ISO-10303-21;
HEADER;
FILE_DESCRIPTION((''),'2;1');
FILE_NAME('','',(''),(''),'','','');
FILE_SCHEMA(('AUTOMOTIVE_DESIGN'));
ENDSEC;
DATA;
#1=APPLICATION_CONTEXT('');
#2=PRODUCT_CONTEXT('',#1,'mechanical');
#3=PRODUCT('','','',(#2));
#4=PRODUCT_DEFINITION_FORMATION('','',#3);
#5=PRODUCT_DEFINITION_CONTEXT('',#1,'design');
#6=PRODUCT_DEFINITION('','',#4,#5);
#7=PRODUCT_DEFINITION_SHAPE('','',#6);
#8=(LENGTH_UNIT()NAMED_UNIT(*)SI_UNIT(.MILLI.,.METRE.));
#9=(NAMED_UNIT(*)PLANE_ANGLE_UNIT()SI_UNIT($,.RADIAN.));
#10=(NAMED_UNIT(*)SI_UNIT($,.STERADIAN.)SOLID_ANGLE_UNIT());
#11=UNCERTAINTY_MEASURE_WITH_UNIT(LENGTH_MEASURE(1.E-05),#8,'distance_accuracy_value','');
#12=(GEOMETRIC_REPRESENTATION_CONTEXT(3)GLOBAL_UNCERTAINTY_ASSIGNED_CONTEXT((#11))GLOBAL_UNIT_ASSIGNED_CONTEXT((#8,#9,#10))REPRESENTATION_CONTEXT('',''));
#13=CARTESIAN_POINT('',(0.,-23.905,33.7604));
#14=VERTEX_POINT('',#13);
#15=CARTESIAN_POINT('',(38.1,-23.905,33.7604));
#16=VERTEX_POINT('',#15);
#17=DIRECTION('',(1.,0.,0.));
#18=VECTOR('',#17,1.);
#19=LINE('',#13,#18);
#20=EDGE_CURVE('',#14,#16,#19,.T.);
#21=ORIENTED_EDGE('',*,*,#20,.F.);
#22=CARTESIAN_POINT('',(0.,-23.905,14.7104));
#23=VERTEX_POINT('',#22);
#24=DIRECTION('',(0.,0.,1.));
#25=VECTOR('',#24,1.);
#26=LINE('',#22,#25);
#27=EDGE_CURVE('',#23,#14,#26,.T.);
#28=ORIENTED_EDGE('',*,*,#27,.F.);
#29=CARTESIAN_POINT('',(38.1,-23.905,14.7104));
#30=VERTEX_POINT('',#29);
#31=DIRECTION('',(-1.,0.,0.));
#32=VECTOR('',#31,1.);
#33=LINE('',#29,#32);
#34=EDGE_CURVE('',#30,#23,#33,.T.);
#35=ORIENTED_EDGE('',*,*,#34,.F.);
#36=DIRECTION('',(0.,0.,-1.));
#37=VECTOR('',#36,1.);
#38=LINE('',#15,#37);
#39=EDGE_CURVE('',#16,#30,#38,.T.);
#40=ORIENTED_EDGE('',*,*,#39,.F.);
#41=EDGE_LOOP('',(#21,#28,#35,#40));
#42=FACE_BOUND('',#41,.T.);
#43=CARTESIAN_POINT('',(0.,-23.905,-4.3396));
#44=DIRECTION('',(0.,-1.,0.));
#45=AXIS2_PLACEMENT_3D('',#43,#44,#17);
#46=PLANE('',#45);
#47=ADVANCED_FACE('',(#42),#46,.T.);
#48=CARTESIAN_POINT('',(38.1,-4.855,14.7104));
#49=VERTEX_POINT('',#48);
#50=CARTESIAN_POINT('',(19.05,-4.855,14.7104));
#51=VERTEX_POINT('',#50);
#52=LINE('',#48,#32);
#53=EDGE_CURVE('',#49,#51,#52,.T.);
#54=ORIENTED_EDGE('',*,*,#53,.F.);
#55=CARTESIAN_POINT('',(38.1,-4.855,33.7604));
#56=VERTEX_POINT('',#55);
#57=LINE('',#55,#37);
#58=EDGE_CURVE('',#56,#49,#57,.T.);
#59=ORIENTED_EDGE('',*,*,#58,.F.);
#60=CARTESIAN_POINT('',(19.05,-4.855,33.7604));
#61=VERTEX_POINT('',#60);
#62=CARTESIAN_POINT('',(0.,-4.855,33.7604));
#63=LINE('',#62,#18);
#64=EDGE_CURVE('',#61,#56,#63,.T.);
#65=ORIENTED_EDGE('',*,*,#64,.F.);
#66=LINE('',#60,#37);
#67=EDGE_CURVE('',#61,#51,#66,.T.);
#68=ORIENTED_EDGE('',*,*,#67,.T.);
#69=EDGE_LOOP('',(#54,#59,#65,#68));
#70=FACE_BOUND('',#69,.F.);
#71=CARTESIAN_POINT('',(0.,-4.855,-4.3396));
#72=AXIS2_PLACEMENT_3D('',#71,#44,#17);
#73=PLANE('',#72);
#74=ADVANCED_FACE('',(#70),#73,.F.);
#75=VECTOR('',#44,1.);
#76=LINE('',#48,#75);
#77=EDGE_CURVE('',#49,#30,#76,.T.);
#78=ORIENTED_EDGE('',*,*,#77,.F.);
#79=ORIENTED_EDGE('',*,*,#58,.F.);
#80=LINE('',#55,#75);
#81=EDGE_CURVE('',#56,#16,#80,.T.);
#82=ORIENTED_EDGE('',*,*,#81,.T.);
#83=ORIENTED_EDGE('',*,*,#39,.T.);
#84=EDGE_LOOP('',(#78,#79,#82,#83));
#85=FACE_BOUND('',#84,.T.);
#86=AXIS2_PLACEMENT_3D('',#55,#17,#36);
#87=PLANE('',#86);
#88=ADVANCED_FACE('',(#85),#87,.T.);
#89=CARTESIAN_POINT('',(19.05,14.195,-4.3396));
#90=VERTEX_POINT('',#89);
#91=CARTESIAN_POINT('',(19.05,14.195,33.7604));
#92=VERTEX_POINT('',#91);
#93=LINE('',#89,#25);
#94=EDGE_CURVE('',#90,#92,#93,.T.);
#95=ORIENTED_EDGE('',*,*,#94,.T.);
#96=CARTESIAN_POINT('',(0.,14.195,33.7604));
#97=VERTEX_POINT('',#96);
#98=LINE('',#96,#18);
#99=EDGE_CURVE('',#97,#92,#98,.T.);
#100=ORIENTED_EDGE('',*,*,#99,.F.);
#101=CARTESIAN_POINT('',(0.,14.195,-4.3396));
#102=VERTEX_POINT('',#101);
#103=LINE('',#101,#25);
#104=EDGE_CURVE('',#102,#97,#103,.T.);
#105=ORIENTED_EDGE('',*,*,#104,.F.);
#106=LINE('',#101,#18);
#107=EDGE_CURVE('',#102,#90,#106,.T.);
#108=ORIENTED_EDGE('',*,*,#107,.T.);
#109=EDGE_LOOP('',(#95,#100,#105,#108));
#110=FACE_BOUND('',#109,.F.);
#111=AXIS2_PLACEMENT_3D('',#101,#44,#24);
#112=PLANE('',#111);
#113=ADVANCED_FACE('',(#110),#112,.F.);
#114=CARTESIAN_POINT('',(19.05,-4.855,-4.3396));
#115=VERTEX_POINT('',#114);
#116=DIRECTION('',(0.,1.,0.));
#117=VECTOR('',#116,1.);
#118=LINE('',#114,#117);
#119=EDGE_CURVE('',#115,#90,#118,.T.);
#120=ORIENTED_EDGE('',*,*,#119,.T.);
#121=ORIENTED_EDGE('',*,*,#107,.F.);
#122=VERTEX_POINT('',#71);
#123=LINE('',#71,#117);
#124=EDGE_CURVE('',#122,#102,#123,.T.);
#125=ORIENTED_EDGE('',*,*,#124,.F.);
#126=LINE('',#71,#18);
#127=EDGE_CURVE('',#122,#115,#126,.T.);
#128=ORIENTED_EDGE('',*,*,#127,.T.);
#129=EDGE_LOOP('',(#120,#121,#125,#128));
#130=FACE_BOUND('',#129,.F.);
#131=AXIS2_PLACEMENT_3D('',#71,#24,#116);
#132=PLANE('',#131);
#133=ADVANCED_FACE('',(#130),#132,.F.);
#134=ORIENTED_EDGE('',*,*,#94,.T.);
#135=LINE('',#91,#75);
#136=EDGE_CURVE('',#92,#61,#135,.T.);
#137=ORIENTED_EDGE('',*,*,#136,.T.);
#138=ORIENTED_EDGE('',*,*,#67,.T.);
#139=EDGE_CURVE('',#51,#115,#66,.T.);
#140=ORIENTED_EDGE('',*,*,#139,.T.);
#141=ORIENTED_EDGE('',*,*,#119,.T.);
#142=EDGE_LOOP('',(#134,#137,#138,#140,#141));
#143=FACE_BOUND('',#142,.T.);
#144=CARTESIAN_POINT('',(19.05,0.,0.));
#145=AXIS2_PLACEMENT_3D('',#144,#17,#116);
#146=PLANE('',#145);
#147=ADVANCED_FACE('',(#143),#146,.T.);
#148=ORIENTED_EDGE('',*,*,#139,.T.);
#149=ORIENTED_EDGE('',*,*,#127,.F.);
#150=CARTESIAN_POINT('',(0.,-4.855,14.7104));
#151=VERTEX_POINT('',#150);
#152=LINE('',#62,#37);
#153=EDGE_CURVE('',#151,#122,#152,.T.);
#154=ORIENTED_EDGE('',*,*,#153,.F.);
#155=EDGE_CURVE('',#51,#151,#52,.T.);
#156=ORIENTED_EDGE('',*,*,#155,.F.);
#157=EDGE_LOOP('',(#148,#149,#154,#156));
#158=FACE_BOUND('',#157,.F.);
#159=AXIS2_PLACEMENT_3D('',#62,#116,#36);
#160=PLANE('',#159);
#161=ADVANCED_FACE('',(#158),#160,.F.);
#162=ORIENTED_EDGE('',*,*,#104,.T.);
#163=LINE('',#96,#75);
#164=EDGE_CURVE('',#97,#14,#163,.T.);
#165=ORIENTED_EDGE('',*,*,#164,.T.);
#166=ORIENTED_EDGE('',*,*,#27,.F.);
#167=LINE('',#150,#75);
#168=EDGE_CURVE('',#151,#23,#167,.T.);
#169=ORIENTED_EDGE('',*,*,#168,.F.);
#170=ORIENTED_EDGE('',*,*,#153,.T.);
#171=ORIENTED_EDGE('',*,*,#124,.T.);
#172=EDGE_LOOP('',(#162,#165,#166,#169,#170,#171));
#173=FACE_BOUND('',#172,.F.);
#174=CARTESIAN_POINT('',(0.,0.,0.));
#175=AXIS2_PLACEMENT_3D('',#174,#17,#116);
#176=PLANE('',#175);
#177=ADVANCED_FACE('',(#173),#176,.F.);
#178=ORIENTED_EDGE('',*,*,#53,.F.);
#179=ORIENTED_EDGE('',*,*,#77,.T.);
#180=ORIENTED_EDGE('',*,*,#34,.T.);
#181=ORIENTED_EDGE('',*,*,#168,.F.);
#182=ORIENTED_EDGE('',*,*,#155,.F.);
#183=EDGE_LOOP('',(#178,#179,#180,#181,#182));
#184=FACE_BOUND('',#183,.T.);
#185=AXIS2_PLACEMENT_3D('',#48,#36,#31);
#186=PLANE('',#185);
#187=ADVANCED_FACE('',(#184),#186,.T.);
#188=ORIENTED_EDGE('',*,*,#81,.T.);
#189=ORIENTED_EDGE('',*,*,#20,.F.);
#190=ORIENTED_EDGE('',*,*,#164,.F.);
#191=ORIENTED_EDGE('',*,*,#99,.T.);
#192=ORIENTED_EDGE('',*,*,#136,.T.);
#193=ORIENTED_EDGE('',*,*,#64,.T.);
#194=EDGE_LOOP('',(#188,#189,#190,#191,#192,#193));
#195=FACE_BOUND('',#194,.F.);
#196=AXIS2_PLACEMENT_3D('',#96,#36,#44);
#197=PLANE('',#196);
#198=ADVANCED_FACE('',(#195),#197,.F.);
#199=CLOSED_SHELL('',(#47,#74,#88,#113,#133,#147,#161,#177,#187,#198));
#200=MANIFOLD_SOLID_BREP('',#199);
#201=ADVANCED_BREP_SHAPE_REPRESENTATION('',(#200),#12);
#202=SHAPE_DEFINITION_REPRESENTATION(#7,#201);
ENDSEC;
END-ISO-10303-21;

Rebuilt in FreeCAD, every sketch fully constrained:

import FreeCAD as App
import Part
import Sketcher
Q = App.Units.Quantity

doc = App.newDocument("Part")
params = doc.addObject("Spreadsheet::Sheet", "Params")
for row, (alias, value) in enumerate([
    ("sketch1_height", "1.5 in"),
    ("sketch1_width", "0.75 in"),
    ("pad1_length", "0.75 in"),
    ("sketch2_width", "1.5 in"),
    ("sketch2_height", "0.75 in"),
    ("pad2_length", "0.75 in"),
], start=1):
    params.set(f"A{row}", alias)
    params.set(f"B{row}", "=" + value)
    params.setAlias(f"B{row}", alias)

body = doc.addObject("PartDesign::Body", "Body")

sketch1 = body.newObject("Sketcher::SketchObject", "Sketch")
sketch1.AttachmentSupport = (doc.getObject("YZ_Plane"), [""])
sketch1.MapMode = "FlatFace"
sketch1.addGeometry([
    Part.LineSegment(App.Vector(14.195, -4.3396, 0), App.Vector(14.195, 33.7604, 0)),
    Part.LineSegment(App.Vector(14.195, 33.7604, 0), App.Vector(-4.855, 33.7604, 0)),
    Part.LineSegment(App.Vector(-4.855, 33.7604, 0), App.Vector(-4.855, -4.3396, 0)),
    Part.LineSegment(App.Vector(-4.855, -4.3396, 0), App.Vector(14.195, -4.3396, 0)),
], False)
sketch1.addConstraint([
    Sketcher.Constraint("Coincident", 0, 2, 1, 1),
    Sketcher.Constraint("Coincident", 1, 2, 2, 1),
    Sketcher.Constraint("Coincident", 2, 2, 3, 1),
    Sketcher.Constraint("Coincident", 3, 2, 0, 1),
    Sketcher.Constraint("Vertical", 0),
    Sketcher.Constraint("Horizontal", 1),
    Sketcher.Constraint("Vertical", 2),
    Sketcher.Constraint("Horizontal", 3),
    Sketcher.Constraint("DistanceY", 0, 1, 0, 2, Q("1.5 in")),
    Sketcher.Constraint("DistanceX", 1, 2, 1, 1, Q("0.75 in")),
    Sketcher.Constraint("DistanceX", -1, 1, 0, 2, Q("14.195 mm")),
    Sketcher.Constraint("DistanceY", -1, 1, 0, 2, Q("33.7604 mm")),
])
sketch1.setExpression("Constraints[8]", "Params.sketch1_height")
sketch1.setExpression("Constraints[9]", "Params.sketch1_width")
pad1 = body.newObject("PartDesign::Pad", "Pad")
pad1.Profile = sketch1
pad1.setExpression("Length", "Params.pad1_length")

sketch2 = body.newObject("Sketcher::SketchObject", "Sketch001")
sketch2.AttachmentSupport = (doc.getObject("XZ_Plane"), [""])
sketch2.MapMode = "FlatFace"
sketch2.AttachmentOffset = App.Placement(App.Vector(0, 0, 4.855), App.Rotation())
sketch2.addGeometry([
    Part.LineSegment(App.Vector(38.1, 33.7604, 0), App.Vector(0, 33.7604, 0)),
    Part.LineSegment(App.Vector(0, 33.7604, 0), App.Vector(0, 14.7104, 0)),
    Part.LineSegment(App.Vector(0, 14.7104, 0), App.Vector(38.1, 14.7104, 0)),
    Part.LineSegment(App.Vector(38.1, 14.7104, 0), App.Vector(38.1, 33.7604, 0)),
], False)
sketch2.addConstraint([
    Sketcher.Constraint("Coincident", 0, 2, 1, 1),
    Sketcher.Constraint("Coincident", 1, 2, 2, 1),
    Sketcher.Constraint("Coincident", 2, 2, 3, 1),
    Sketcher.Constraint("Coincident", 3, 2, 0, 1),
    Sketcher.Constraint("Horizontal", 0),
    Sketcher.Constraint("Vertical", 1),
    Sketcher.Constraint("Horizontal", 2),
    Sketcher.Constraint("Vertical", 3),
    Sketcher.Constraint("PointOnObject", 0, 2, -2),
    Sketcher.Constraint("DistanceX", 0, 2, 0, 1, Q("1.5 in")),
    Sketcher.Constraint("DistanceY", 1, 2, 1, 1, Q("0.75 in")),
    Sketcher.Constraint("DistanceY", -1, 1, 0, 2, Q("33.7604 mm")),
])
sketch2.setExpression("Constraints[9]", "Params.sketch2_width")
sketch2.setExpression("Constraints[10]", "Params.sketch2_height")
pad2 = body.newObject("PartDesign::Pad", "Pad001")
pad2.Profile = sketch2
pad2.setExpression("Length", "Params.pad2_length")

doc.recompute()
